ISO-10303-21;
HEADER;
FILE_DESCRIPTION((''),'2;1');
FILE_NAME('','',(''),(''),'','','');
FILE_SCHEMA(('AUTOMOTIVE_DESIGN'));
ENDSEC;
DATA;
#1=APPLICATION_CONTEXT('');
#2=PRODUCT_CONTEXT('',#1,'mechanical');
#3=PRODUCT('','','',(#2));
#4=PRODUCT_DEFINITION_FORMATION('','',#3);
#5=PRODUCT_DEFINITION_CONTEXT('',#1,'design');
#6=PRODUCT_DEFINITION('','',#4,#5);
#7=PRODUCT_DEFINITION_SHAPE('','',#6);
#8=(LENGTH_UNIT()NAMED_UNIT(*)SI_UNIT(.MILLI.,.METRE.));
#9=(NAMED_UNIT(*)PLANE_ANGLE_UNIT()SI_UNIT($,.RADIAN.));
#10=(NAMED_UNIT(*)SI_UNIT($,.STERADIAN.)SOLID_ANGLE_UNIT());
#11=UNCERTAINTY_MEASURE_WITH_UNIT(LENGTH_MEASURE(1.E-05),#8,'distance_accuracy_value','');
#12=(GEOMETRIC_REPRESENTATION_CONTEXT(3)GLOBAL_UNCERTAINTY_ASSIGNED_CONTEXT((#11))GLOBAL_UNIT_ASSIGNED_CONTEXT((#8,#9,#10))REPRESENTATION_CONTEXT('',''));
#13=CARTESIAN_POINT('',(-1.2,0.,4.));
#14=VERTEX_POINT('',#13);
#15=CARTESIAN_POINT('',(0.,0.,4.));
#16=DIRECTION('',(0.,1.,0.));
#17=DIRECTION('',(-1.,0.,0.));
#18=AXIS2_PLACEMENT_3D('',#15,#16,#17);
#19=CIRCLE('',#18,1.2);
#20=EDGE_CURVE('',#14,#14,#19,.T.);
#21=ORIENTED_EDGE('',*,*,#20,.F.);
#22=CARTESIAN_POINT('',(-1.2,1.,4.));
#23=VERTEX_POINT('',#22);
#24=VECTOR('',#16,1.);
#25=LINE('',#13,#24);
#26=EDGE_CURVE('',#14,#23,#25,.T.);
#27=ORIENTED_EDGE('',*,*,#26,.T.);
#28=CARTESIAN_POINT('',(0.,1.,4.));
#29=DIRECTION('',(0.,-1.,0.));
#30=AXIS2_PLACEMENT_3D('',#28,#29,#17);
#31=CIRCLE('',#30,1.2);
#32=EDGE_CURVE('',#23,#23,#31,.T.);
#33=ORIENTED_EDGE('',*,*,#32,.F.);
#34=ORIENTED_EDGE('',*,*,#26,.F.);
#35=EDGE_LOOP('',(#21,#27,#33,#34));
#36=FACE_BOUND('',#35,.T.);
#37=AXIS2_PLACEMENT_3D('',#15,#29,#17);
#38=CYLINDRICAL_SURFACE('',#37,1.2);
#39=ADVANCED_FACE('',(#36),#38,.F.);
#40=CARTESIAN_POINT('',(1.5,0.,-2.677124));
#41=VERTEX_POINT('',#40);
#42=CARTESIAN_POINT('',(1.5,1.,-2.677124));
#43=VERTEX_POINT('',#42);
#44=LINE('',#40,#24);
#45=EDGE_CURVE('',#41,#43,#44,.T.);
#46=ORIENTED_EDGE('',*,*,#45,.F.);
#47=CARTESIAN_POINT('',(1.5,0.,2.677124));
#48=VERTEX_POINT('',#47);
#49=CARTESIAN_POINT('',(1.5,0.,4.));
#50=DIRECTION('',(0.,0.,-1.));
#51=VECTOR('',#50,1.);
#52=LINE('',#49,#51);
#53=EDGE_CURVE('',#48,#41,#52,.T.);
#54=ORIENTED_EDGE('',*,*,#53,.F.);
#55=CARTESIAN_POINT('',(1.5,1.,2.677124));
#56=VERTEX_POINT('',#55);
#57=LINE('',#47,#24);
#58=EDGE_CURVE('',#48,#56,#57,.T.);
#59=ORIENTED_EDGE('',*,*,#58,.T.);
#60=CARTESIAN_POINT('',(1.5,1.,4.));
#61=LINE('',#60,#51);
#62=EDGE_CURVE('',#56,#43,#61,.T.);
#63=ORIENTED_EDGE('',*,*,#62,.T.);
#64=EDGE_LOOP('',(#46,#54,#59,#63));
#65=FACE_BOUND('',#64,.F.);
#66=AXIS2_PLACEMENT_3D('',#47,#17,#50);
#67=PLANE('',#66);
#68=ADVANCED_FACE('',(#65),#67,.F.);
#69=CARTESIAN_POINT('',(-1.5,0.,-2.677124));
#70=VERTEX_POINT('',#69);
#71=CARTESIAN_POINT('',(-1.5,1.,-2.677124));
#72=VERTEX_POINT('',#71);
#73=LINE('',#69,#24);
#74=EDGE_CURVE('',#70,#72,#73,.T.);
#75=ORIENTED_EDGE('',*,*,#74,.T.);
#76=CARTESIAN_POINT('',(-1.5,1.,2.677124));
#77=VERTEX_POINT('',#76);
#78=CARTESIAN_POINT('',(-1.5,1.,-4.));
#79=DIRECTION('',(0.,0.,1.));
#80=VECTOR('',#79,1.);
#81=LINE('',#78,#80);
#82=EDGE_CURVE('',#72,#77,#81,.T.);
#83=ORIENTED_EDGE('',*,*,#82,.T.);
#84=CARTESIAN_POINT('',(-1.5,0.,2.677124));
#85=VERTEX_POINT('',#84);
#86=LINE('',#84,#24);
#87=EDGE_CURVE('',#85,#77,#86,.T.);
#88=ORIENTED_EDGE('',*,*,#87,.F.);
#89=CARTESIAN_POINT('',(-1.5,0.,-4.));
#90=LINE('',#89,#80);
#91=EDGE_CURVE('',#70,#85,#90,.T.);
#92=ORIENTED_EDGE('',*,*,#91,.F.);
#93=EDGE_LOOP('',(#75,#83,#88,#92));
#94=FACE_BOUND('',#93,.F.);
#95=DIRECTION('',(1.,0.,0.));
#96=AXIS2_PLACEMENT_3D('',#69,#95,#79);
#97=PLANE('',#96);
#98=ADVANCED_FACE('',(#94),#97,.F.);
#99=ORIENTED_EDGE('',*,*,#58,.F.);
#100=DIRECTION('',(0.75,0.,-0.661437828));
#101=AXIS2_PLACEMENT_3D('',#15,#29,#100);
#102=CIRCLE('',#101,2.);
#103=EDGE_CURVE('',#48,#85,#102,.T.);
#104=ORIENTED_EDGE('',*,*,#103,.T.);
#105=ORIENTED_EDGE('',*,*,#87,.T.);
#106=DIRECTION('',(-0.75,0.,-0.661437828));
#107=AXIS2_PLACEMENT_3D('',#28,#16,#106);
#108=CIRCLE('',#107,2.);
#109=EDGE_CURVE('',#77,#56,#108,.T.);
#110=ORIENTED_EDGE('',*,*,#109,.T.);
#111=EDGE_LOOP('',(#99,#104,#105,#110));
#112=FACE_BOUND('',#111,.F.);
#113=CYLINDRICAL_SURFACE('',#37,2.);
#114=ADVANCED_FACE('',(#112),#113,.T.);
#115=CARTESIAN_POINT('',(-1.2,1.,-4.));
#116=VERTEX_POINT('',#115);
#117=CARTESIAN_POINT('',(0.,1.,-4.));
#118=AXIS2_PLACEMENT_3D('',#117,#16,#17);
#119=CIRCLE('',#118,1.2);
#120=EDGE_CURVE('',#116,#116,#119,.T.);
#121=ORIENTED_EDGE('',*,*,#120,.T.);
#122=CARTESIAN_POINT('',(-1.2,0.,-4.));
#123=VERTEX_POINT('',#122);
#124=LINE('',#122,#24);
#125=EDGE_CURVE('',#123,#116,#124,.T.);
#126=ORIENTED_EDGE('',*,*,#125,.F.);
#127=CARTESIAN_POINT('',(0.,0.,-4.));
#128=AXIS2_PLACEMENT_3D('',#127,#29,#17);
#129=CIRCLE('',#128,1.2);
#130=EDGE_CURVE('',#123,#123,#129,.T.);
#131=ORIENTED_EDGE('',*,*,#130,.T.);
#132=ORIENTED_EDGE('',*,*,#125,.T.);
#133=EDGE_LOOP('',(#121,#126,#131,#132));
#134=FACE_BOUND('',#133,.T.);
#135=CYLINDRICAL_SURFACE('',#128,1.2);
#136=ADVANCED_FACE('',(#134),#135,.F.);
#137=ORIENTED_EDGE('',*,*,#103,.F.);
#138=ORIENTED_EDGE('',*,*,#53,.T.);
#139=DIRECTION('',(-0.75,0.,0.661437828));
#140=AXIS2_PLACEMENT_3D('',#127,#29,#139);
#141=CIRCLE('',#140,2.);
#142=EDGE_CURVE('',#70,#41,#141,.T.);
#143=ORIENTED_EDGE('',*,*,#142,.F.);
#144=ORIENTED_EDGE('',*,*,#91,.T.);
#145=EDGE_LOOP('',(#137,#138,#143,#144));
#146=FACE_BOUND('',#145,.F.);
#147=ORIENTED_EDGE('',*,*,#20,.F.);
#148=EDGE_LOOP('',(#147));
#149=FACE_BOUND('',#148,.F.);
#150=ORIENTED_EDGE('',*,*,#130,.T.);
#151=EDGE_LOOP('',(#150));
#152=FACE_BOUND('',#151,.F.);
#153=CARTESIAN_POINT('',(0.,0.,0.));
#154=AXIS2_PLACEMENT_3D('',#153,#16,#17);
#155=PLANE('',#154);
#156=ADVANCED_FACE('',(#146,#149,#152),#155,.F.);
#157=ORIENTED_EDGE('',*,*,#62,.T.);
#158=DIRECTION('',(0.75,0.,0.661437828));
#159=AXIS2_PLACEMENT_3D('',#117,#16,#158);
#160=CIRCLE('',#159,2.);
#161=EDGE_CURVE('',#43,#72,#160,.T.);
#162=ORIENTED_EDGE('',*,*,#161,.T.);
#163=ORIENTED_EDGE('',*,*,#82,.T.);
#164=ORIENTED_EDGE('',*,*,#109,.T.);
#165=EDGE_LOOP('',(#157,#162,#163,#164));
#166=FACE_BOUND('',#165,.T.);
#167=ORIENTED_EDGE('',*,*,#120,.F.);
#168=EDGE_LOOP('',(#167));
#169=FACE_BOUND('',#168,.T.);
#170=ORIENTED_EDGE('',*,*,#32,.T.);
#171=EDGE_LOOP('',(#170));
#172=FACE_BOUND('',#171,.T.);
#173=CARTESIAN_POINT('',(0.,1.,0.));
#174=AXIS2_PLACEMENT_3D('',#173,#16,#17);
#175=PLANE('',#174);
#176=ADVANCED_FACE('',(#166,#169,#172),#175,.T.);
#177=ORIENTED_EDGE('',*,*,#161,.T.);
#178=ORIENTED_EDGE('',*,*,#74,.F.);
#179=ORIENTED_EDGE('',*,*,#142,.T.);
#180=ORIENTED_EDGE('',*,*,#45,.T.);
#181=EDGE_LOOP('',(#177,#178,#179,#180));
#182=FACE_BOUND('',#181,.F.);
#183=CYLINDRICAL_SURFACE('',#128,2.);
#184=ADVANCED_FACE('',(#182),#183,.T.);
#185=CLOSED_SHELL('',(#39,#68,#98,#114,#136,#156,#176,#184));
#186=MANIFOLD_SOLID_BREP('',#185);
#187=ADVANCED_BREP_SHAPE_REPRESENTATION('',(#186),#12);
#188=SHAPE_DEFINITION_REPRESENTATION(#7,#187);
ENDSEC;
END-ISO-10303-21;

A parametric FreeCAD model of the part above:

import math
import FreeCAD as App
import Part
import Sketcher
from FreeCAD import Vector
Q = App.Units.Quantity

doc = App.newDocument("Part")
body = doc.addObject("PartDesign::Body", "Body")

sketch1 = doc.addObject("Sketcher::SketchObject", "Sketch")
body.addObject(sketch1)
sketch1.AttachmentSupport = (doc.XZ_Plane, [""])
sketch1.MapMode = "FlatFace"
sketch1.addGeometry([
    Part.ArcOfCircle(Part.Circle(Vector(0, -4, 0), Vector(0, 0, 1), 2), math.radians(139), math.radians(401)),
    Part.LineSegment(Vector(-1.5, -2.7, 0), Vector(-1.5, 2.7, 0)),
    Part.ArcOfCircle(Part.Circle(Vector(0, 4, 0), Vector(0, 0, 1), 2), math.radians(-41), math.radians(221)),
    Part.LineSegment(Vector(1.5, 2.7, 0), Vector(1.5, -2.7, 0)),
    Part.Circle(Vector(0, -4, 0), Vector(0, 0, 1), 1.2),
    Part.Circle(Vector(0, 4, 0), Vector(0, 0, 1), 1.2),
], False)
sketch1.addConstraint([
    Sketcher.Constraint("Coincident", 0, 1, 1, 1),
    Sketcher.Constraint("Coincident", 1, 2, 2, 2),
    Sketcher.Constraint("Coincident", 2, 1, 3, 1),
    Sketcher.Constraint("Coincident", 3, 2, 0, 2),
    Sketcher.Constraint("Vertical", 1),
    Sketcher.Constraint("Vertical", 3),
    Sketcher.Constraint("Coincident", 4, 3, 0, 3),
    Sketcher.Constraint("Coincident", 5, 3, 2, 3),
    Sketcher.Constraint("Equal", 0, 2),
    Sketcher.Constraint("Equal", 4, 5),
    Sketcher.Constraint("Symmetric", 0, 3, 2, 3, -1, 1),
    Sketcher.Constraint("Symmetric", 1, 2, 2, 1, -2),
    Sketcher.Constraint("Radius", 0, Q("2 mm")),
    Sketcher.Constraint("Diameter", 4, Q("2.4 mm")),
    Sketcher.Constraint("DistanceY", 0, 3, -1, 1, Q("4 mm")),
    Sketcher.Constraint("DistanceX", 1, 2, 2, 1, Q("3 mm")),
])
pad1 = doc.addObject("PartDesign::Pad", "Pad")
body.addObject(pad1)
pad1.Profile = sketch1
pad1.Length = 1
pad1.Reversed = True

doc.recompute()
